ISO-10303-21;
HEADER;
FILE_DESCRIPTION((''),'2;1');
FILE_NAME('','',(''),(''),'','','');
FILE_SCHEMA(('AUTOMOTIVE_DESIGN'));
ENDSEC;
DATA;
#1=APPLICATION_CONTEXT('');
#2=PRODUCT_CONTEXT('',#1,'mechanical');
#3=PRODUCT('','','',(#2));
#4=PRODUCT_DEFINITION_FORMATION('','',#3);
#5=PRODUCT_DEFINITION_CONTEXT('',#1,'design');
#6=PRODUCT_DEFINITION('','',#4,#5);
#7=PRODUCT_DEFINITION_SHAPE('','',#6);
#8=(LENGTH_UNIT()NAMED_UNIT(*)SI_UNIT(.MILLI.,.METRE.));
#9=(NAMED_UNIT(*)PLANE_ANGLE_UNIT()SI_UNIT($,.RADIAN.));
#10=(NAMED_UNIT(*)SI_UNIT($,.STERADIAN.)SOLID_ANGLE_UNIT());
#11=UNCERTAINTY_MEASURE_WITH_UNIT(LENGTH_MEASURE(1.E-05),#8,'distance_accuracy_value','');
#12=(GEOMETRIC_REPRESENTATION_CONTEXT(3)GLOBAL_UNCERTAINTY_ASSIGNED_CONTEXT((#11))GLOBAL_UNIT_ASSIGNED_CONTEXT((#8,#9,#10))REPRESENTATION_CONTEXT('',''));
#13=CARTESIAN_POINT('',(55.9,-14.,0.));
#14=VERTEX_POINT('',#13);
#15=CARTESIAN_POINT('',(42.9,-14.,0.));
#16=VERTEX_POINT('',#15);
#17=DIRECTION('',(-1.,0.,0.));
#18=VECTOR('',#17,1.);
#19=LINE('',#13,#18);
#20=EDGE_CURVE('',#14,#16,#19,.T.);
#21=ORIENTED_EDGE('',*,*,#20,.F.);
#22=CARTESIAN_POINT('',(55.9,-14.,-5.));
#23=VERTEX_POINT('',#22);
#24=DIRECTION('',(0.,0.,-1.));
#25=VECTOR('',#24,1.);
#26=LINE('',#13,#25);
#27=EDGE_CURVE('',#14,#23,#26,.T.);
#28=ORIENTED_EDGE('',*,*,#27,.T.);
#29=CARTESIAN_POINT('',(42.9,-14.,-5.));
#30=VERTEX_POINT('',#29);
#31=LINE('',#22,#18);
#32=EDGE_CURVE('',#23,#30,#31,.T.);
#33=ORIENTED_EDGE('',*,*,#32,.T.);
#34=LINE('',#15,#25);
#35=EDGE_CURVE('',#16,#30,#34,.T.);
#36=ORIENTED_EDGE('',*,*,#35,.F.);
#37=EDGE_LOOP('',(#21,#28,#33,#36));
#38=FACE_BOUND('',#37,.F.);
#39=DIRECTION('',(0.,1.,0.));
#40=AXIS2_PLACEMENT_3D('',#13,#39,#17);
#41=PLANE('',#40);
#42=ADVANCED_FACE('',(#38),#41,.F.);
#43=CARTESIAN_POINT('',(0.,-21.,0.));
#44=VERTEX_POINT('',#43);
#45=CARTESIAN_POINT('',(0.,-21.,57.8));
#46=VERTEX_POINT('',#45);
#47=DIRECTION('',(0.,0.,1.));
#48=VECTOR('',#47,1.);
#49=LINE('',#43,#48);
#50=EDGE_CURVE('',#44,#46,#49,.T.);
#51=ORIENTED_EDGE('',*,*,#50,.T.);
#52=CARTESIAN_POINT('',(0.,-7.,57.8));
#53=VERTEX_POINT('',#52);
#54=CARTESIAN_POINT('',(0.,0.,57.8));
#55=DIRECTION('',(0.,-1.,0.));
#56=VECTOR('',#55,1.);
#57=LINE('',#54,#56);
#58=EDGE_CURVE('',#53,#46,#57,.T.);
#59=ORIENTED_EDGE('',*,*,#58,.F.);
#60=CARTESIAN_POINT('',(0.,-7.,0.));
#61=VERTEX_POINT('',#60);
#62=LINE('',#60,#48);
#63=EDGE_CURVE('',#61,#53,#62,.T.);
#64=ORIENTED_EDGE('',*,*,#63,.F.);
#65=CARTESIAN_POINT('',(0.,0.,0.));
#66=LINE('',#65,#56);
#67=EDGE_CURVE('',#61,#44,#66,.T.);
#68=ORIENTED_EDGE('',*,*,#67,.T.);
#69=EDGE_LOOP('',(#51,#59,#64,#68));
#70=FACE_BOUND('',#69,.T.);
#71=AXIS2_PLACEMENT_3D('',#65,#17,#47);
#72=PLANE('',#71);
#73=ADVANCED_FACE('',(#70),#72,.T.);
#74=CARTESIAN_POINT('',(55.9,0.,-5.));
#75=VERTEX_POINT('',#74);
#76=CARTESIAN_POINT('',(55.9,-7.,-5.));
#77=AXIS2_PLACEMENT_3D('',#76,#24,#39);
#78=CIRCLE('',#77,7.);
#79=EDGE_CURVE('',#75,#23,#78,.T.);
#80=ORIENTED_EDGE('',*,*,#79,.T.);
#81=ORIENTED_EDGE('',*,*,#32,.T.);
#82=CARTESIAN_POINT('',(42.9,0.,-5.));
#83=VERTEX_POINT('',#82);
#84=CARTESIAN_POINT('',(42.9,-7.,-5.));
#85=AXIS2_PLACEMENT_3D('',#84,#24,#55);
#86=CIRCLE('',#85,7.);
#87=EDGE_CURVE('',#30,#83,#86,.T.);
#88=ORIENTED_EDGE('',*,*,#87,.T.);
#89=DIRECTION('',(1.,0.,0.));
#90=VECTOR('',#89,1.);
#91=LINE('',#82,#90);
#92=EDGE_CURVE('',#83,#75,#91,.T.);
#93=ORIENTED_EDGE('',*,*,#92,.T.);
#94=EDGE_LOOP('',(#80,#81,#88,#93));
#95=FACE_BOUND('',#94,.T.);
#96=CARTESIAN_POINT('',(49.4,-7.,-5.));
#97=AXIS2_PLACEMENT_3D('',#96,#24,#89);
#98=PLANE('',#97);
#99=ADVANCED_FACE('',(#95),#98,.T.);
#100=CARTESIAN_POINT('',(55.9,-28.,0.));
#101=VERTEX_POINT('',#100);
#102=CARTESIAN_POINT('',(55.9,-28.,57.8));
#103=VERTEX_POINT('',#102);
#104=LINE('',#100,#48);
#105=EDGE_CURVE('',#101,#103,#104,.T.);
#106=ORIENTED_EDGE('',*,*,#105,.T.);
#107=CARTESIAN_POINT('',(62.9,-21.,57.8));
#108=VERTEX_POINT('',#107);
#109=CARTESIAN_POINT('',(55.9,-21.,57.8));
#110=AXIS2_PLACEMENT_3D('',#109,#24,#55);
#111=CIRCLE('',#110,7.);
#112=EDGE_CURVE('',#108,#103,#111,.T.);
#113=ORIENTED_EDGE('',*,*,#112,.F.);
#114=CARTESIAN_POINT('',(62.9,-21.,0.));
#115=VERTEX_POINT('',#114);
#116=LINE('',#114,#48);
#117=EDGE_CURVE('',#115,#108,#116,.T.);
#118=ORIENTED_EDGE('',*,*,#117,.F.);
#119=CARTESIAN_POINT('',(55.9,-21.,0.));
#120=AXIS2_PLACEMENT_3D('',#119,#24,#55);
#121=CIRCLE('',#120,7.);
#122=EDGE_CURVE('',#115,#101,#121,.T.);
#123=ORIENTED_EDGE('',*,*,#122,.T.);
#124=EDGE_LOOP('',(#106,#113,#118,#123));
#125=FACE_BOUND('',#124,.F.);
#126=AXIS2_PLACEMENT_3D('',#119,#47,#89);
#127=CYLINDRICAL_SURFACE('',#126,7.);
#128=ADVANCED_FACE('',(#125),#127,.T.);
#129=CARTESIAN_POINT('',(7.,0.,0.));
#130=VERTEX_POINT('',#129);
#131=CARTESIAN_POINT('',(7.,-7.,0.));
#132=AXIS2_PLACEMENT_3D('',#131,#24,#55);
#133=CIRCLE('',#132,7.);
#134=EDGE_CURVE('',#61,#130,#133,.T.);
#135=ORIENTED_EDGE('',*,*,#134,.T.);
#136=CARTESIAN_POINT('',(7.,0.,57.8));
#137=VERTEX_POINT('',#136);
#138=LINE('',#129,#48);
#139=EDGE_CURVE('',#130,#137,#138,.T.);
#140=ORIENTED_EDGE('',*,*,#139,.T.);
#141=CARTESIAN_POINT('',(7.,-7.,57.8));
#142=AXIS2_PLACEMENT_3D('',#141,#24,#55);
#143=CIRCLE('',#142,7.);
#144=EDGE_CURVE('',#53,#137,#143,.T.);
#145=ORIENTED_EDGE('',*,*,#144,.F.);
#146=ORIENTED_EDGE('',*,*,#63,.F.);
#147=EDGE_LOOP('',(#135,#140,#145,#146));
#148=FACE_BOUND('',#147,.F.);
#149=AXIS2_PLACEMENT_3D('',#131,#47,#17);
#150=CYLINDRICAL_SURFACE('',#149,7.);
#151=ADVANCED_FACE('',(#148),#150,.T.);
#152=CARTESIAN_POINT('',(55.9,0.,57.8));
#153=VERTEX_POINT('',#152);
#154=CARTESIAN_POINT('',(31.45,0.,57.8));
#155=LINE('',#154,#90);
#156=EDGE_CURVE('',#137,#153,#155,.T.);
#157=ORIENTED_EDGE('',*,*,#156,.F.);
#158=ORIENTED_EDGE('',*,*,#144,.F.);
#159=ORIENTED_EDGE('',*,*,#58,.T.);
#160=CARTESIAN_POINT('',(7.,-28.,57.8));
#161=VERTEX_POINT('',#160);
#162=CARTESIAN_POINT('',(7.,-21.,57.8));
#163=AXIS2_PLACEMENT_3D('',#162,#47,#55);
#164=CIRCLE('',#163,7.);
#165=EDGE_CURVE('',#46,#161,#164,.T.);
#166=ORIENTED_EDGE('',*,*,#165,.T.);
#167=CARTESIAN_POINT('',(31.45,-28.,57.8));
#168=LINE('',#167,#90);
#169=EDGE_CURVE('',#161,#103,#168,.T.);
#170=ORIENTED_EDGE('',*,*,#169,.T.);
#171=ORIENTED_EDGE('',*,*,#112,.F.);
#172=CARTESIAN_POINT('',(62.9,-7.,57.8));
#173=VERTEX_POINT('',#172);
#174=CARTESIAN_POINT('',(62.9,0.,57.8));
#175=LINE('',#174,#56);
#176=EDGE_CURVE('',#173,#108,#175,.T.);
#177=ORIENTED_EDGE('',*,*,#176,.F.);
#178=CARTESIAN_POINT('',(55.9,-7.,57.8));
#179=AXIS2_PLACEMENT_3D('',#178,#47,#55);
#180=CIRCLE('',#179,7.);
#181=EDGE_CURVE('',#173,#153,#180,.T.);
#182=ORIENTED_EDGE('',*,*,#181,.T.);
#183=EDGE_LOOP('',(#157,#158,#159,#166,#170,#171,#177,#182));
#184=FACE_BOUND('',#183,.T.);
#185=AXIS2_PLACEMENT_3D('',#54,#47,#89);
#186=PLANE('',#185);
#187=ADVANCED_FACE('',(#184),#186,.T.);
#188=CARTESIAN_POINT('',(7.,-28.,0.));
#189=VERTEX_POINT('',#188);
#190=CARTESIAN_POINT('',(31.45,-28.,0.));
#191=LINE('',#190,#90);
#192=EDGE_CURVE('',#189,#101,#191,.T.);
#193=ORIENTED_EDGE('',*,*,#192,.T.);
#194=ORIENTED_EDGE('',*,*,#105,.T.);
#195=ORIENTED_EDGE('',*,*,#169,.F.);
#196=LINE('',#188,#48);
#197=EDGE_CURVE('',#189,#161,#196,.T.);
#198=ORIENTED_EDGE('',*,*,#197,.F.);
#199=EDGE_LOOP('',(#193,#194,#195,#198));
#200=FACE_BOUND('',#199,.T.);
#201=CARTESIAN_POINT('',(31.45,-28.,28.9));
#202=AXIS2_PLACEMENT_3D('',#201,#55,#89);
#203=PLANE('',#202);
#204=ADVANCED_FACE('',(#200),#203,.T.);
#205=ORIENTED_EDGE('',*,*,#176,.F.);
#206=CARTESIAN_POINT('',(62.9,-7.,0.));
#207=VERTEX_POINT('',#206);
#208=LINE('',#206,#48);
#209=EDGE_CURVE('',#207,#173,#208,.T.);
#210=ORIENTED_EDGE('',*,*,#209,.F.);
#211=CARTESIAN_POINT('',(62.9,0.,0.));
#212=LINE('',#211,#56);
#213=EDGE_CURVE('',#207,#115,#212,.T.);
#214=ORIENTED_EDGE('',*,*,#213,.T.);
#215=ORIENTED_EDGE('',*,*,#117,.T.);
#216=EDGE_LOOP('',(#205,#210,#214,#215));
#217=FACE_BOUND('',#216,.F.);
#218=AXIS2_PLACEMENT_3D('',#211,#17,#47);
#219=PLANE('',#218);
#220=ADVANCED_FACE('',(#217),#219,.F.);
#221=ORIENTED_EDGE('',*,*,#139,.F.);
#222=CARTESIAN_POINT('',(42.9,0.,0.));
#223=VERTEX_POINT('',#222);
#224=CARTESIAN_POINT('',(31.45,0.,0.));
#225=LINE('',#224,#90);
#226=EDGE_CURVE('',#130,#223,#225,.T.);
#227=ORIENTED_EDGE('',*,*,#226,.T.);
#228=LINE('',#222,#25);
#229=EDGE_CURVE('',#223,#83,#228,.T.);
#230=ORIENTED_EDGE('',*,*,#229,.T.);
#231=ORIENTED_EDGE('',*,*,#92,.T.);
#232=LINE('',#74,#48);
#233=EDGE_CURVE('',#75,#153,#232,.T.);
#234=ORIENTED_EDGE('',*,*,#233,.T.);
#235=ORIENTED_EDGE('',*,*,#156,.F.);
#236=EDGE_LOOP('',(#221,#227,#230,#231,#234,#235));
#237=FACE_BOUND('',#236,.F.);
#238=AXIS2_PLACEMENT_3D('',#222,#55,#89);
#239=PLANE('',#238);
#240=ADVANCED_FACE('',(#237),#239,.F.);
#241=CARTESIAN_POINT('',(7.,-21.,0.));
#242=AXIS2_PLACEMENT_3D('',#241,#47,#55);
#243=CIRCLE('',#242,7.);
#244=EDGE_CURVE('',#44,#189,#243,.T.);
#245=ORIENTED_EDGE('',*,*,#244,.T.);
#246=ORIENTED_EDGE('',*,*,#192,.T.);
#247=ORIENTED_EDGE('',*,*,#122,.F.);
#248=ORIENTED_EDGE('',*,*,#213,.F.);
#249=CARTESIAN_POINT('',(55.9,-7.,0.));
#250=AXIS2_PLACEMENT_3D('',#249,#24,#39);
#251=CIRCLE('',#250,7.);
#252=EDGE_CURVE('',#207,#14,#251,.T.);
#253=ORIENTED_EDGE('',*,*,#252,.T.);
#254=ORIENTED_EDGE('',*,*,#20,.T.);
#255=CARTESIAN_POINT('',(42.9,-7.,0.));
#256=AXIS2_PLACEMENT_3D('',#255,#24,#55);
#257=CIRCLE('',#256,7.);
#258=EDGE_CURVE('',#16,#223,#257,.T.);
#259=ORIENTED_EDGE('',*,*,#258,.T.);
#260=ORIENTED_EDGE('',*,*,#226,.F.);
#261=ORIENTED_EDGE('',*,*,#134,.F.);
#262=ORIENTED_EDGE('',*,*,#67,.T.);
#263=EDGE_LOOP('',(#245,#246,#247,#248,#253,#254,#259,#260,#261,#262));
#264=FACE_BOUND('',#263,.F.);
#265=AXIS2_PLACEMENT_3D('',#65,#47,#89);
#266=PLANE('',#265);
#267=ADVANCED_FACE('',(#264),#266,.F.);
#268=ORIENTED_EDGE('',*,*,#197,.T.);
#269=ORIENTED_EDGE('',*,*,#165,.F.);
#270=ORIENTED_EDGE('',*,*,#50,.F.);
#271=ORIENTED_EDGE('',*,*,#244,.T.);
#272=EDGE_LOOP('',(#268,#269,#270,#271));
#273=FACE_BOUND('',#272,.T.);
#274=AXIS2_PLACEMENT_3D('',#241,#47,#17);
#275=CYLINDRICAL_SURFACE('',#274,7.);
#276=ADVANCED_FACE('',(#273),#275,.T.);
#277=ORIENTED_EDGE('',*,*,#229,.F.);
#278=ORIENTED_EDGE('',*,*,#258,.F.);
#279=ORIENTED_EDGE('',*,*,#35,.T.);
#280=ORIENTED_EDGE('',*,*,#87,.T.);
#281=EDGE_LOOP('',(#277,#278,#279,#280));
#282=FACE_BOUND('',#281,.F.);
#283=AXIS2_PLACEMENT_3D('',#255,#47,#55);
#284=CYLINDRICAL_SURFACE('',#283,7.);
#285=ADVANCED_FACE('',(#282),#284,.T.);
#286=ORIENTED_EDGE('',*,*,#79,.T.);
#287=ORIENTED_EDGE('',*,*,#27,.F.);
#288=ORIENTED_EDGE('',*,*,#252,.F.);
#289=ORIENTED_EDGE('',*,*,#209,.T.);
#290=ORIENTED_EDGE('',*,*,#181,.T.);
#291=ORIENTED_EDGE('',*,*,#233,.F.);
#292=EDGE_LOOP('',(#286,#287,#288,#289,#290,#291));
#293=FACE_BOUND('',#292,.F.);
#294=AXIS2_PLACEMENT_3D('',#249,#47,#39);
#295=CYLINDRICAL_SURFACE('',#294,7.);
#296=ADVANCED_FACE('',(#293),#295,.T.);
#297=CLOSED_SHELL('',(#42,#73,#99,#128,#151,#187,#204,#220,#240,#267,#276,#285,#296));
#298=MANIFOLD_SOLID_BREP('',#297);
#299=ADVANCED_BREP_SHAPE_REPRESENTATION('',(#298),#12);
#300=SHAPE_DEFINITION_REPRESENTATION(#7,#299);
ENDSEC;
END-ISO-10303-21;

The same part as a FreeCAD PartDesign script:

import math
import FreeCAD as App
import Part
import Sketcher

V = App.Vector
Q = App.Units.Quantity


def edges_at(feature, points):
    """Names of the edges that pass closest to the given points."""
    edges = feature.Shape.Edges
    near = lambda p: min(range(len(edges)), key=lambda i: edges[i].distToShape(Part.Vertex(*p))[0])
    return sorted({f"Edge{near(p) + 1}" for p in points})


def add_polygon(sketch, points):
    """Adds a closed chain of lines whose ends are joined by coincident constraints."""
    first, n = sketch.GeometryCount, len(points)
    for a, b in zip(points, points[1:] + points[:1]):
        sketch.addGeometry(Part.LineSegment(App.Vector(*a, 0), App.Vector(*b, 0)), False)
    for i in range(n):
        sketch.addConstraint(Sketcher.Constraint("Coincident", first + i, 2, first + (i + 1) % n, 1))

doc = App.newDocument("Part")
body = doc.addObject("PartDesign::Body", "Body")

# Sketch on XZ plane
sketch1 = body.newObject("Sketcher::SketchObject", "Sketch")
sketch1.AttachmentSupport = (doc.getObject("XZ_Plane"), [""])
sketch1.MapMode = "FlatFace"
add_polygon(sketch1, [(0, 58), (0, 0), (63, 0), (63, 58)])  # lines 0-3
sketch1.addConstraint(Sketcher.Constraint("Vertical", 0))
sketch1.addConstraint(Sketcher.Constraint("Horizontal", 1))
sketch1.addConstraint(Sketcher.Constraint("Vertical", 2))
sketch1.addConstraint(Sketcher.Constraint("Horizontal", 3))
sketch1.addConstraint(Sketcher.Constraint("Coincident", 0, 2, -1, 1))
sketch1.addConstraint(Sketcher.Constraint("DistanceX", 1, 1, 1, 2, Q("62.9 mm")))
sketch1.addConstraint(Sketcher.Constraint("DistanceY", 0, 2, 0, 1, Q("57.8 mm")))
pad1 = body.newObject("PartDesign::Pad", "Pad")
pad1.Profile = sketch1
pad1.Length = 28
doc.recompute()

fillet = body.newObject("PartDesign::Fillet", "Fillet")
fillet.Base = (pad1, edges_at(pad1, [
    (0, -28, 28.9),
    (0, 0, 28.9),
    (62.9, -28, 28.9),
    (62.9, 0, 28.9),
]))
fillet.Radius = 7

# Sketch on XY plane
sketch2 = body.newObject("Sketcher::SketchObject", "Sketch001")
sketch2.AttachmentSupport = (doc.getObject("XY_Plane"), [""])
sketch2.MapMode = "FlatFace"
sketch2.addGeometry(Part.LineSegment(V(56, -14, 0), V(43, -14, 0)), False)
sketch2.addGeometry(Part.ArcOfCircle(Part.Circle(V(43, -7, 0), V(0, 0, 1), 7), math.radians(90), math.radians(270)), False)
sketch2.addGeometry(Part.LineSegment(V(43, 0, 0), V(56, 0, 0)), False)
sketch2.addGeometry(Part.ArcOfCircle(Part.Circle(V(56, -7, 0), V(0, 0, 1), 7), math.radians(-90), math.radians(90)), False)
sketch2.addConstraint(Sketcher.Constraint("Tangent", 0, 2, 1, 2))
sketch2.addConstraint(Sketcher.Constraint("Tangent", 1, 1, 2, 1))
sketch2.addConstraint(Sketcher.Constraint("Tangent", 2, 2, 3, 2))
sketch2.addConstraint(Sketcher.Constraint("Tangent", 3, 1, 0, 1))
sketch2.addConstraint(Sketcher.Constraint("Horizontal", 0))
sketch2.addConstraint(Sketcher.Constraint("Horizontal", 2))
sketch2.addConstraint(Sketcher.Constraint("PointOnObject", 1, 1, -1))
sketch2.addConstraint(Sketcher.Constraint("Radius", 1, Q("7 mm")))
sketch2.addConstraint(Sketcher.Constraint("DistanceX", 0, 2, 0, 1, Q("13 mm")))
sketch2.addConstraint(Sketcher.Constraint("DistanceX", -1, 1, 1, 3, Q("42.9 mm")))
pad2 = body.newObject("PartDesign::Pad", "Pad001")
pad2.Profile = sketch2
pad2.Length = 5
pad2.Reversed = True

doc.recompute()
